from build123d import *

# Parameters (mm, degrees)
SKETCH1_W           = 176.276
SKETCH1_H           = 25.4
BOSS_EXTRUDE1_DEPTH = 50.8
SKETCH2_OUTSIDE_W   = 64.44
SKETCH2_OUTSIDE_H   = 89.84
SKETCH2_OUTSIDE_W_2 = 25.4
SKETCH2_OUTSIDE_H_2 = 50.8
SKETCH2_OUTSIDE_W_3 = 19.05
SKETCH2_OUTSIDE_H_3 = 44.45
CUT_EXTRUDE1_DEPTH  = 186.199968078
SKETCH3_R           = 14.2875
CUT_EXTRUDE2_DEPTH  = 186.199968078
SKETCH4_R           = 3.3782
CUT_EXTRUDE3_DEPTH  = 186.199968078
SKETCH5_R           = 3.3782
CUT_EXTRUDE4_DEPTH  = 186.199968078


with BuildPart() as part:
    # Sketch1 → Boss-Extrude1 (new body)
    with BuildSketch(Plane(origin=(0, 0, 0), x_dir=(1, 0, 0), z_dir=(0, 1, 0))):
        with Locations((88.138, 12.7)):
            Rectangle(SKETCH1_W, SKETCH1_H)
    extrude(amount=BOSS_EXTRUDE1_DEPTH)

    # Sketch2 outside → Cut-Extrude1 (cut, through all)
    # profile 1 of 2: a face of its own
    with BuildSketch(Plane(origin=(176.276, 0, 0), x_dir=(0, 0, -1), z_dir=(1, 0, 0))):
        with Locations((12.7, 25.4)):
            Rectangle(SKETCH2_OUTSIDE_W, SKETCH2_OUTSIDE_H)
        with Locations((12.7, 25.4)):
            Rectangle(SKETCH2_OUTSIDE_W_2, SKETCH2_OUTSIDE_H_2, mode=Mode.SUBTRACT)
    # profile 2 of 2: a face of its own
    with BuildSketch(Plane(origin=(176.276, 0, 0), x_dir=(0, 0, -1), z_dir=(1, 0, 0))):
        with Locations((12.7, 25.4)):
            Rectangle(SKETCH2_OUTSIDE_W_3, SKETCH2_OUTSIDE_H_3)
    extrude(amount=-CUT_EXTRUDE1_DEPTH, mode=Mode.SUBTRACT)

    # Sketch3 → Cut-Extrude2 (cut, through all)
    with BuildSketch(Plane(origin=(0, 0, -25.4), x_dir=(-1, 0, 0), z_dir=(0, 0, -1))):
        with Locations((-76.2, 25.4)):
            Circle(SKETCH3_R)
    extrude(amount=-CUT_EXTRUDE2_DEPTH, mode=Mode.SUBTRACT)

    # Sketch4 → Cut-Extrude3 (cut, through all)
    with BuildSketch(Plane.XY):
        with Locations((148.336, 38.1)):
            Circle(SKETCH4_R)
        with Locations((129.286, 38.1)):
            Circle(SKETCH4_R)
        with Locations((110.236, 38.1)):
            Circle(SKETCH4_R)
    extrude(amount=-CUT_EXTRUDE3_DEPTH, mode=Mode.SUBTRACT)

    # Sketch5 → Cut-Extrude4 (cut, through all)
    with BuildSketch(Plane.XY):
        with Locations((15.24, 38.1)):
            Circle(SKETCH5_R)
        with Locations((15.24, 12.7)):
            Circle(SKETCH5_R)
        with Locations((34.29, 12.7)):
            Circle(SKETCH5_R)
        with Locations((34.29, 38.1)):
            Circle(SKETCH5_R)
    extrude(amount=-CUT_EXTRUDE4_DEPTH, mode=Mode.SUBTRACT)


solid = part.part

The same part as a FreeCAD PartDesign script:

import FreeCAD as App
import Part
import Sketcher

V = App.Vector
Q = App.Units.Quantity

doc = App.newDocument("Part")
params = doc.addObject("Spreadsheet::Sheet", "Params")
for row, (alias, value) in enumerate([
    ("sketch1_height", "1 in"),
    ("sketch1_width", "6.94 in"),
    ("pad1_length", "2 in"),
    ("sketch2_width", "2 in"),
    ("sketch2_height", "1 in"),
    ("sketch2_width2", "1.75 in"),
    ("sketch2_height2", "0.75 in"),
    ("pocket1_length", "186.199968 mm"),
    ("sketch3_diameter", "1.125 in"),
    ("sketch4_diameter", "0.266 in"),
    ("sketch5_diameter", "0.266 in"),
], start=1):
    params.set(f"A{row}", alias)
    params.set(f"B{row}", "=" + value)
    params.setAlias(f"B{row}", alias)

body = doc.addObject("PartDesign::Body", "Body")

# Sketch on XZ plane
sketch1 = body.newObject("Sketcher::SketchObject", "Sketch")
sketch1.AttachmentSupport = (doc.getObject("XZ_Plane"), [""])
sketch1.MapMode = "FlatFace"
sketch1.addGeometry(Part.LineSegment(V(0, -25, 0), V(0, 0, 0)), False)
sketch1.addGeometry(Part.LineSegment(V(0, 0, 0), V(176, 0, 0)), False)
sketch1.addGeometry(Part.LineSegment(V(176, 0, 0), V(176, -25, 0)), False)
sketch1.addGeometry(Part.LineSegment(V(176, -25, 0), V(0, -25, 0)), False)
sketch1.addConstraint(Sketcher.Constraint("Coincident", 0, 2, 1, 1))
sketch1.addConstraint(Sketcher.Constraint("Coincident", 1, 2, 2, 1))
sketch1.addConstraint(Sketcher.Constraint("Coincident", 2, 2, 3, 1))
sketch1.addConstraint(Sketcher.Constraint("Coincident", 3, 2, 0, 1))
sketch1.addConstraint(Sketcher.Constraint("Vertical", 0))
sketch1.addConstraint(Sketcher.Constraint("Horizontal", 1))
sketch1.addConstraint(Sketcher.Constraint("Vertical", 2))
sketch1.addConstraint(Sketcher.Constraint("Horizontal", 3))
sketch1.addConstraint(Sketcher.Constraint("Coincident", 0, 2, -1, 1))
sketch1.addConstraint(Sketcher.Constraint("DistanceY", 0, 1, 0, 2, Q("1 in")))
sketch1.addConstraint(Sketcher.Constraint("DistanceX", 1, 1, 1, 2, Q("6.94 in")))
sketch1.setExpression("Constraints[9]", "Params.sketch1_height")
sketch1.setExpression("Constraints[10]", "Params.sketch1_width")
pad1 = body.newObject("PartDesign::Pad", "Pad")
pad1.Profile = sketch1
pad1.setExpression("Length", "Params.pad1_length")
pad1.Reversed = True

# Sketch on YZ plane
sketch2 = body.newObject("Sketcher::SketchObject", "Sketch001")
sketch2.AttachmentSupport = (doc.getObject("YZ_Plane"), [""])
sketch2.MapMode = "FlatFace"
sketch2.AttachmentOffset = App.Placement(V(0, 0, 6.94 * 25.4), App.Rotation())
sketch2.addGeometry(Part.LineSegment(V(70, 20, 0), V(-20, 20, 0)), False)
sketch2.addGeometry(Part.LineSegment(V(-20, 20, 0), V(-20, -45, 0)), False)
sketch2.addGeometry(Part.LineSegment(V(-20, -45, 0), V(70, -45, 0)), False)
sketch2.addGeometry(Part.LineSegment(V(70, -45, 0), V(70, 20, 0)), False)
sketch2.addGeometry(Part.LineSegment(V(0, -25, 0), V(0, 0, 0)), False)
sketch2.addGeometry(Part.LineSegment(V(0, 0, 0), V(51, 0, 0)), False)
sketch2.addGeometry(Part.LineSegment(V(51, 0, 0), V(51, -25, 0)), False)
sketch2.addGeometry(Part.LineSegment(V(51, -25, 0), V(0, -25, 0)), False)
sketch2.addGeometry(Part.LineSegment(V(48, -3, 0), V(3, -3, 0)), False)
sketch2.addGeometry(Part.LineSegment(V(3, -3, 0), V(3, -22, 0)), False)
sketch2.addGeometry(Part.LineSegment(V(3, -22, 0), V(48, -22, 0)), False)
sketch2.addGeometry(Part.LineSegment(V(48, -22, 0), V(48, -3, 0)), False)
sketch2.addConstraint(Sketcher.Constraint("Coincident", 0, 2, 1, 1))
sketch2.addConstraint(Sketcher.Constraint("Coincident", 1, 2, 2, 1))
sketch2.addConstraint(Sketcher.Constraint("Coincident", 2, 2, 3, 1))
sketch2.addConstraint(Sketcher.Constraint("Coincident", 3, 2, 0, 1))
sketch2.addConstraint(Sketcher.Constraint("Coincident", 4, 2, 5, 1))
sketch2.addConstraint(Sketcher.Constraint("Coincident", 5, 2, 6, 1))
sketch2.addConstraint(Sketcher.Constraint("Coincident", 6, 2, 7, 1))
sketch2.addConstraint(Sketcher.Constraint("Coincident", 7, 2, 4, 1))
sketch2.addConstraint(Sketcher.Constraint("Coincident", 8, 2, 9, 1))
sketch2.addConstraint(Sketcher.Constraint("Coincident", 9, 2, 10, 1))
sketch2.addConstraint(Sketcher.Constraint("Coincident", 10, 2, 11, 1))
sketch2.addConstraint(Sketcher.Constraint("Coincident", 11, 2, 8, 1))
sketch2.addConstraint(Sketcher.Constraint("Horizontal", 0))
sketch2.addConstraint(Sketcher.Constraint("Vertical", 1))
sketch2.addConstraint(Sketcher.Constraint("Horizontal", 2))
sketch2.addConstraint(Sketcher.Constraint("Vertical", 3))
sketch2.addConstraint(Sketcher.Constraint("Vertical", 4))
sketch2.addConstraint(Sketcher.Constraint("Horizontal", 5))
sketch2.addConstraint(Sketcher.Constraint("Vertical", 6))
sketch2.addConstraint(Sketcher.Constraint("Horizontal", 7))
sketch2.addConstraint(Sketcher.Constraint("Horizontal", 8))
sketch2.addConstraint(Sketcher.Constraint("Vertical", 9))
sketch2.addConstraint(Sketcher.Constraint("Horizontal", 10))
sketch2.addConstraint(Sketcher.Constraint("Vertical", 11))
sketch2.addConstraint(Sketcher.Constraint("Coincident", 4, 2, -1, 1))
sketch2.addConstraint(Sketcher.Constraint("DistanceX", 5, 1, 5, 2, Q("2 in")))
sketch2.addConstraint(Sketcher.Constraint("DistanceY", 4, 1, 4, 2, Q("1 in")))
sketch2.addConstraint(Sketcher.Constraint("DistanceX", 8, 2, 8, 1, Q("1.75 in")))
sketch2.addConstraint(Sketcher.Constraint("DistanceY", 9, 2, 9, 1, Q("0.75 in")))
sketch2.addConstraint(Sketcher.Constraint("DistanceX", -1, 1, 8, 2, Q("0.125 in")))
sketch2.addConstraint(Sketcher.Constraint("DistanceY", 8, 2, -1, 1, Q("0.125 in")))
sketch2.addConstraint(Sketcher.Constraint("DistanceX", 0, 2, 0, 1, Q("89.84 mm")))
sketch2.addConstraint(Sketcher.Constraint("DistanceY", 1, 2, 1, 1, Q("64.44 mm")))
sketch2.addConstraint(Sketcher.Constraint("DistanceX", 0, 2, -1, 1, Q("19.52 mm")))
sketch2.addConstraint(Sketcher.Constraint("DistanceY", -1, 1, 0, 2, Q("19.52 mm")))
sketch2.setExpression("Constraints[25]", "Params.sketch2_width")
sketch2.setExpression("Constraints[26]", "Params.sketch2_height")
sketch2.setExpression("Constraints[27]", "Params.sketch2_width2")
sketch2.setExpression("Constraints[28]", "Params.sketch2_height2")
pocket1 = body.newObject("PartDesign::Pocket", "Pocket")
pocket1.Profile = sketch2
pocket1.setExpression("Length", "Params.pocket1_length")

# Sketch on XY plane
sketch3 = body.newObject("Sketcher::SketchObject", "Sketch002")
sketch3.AttachmentSupport = (doc.getObject("XY_Plane"), [""])
sketch3.MapMode = "FlatFace"
sketch3.AttachmentOffset = App.Placement(V(0, 0, -1 * 25.4), App.Rotation())
sketch3.addGeometry(Part.Circle(V(76, 25, 0), V(0, 0, 1), 14), False)
sketch3.addConstraint(Sketcher.Constraint("Diameter", 0, Q("1.125 in")))
sketch3.addConstraint(Sketcher.Constraint("DistanceX", -1, 1, 0, 3, Q("3 in")))
sketch3.addConstraint(Sketcher.Constraint("DistanceY", -1, 1, 0, 3, Q("1 in")))
sketch3.setExpression("Constraints[0]", "Params.sketch3_diameter")
pocket2 = body.newObject("PartDesign::Pocket", "Pocket001")
pocket2.Profile = sketch3
pocket2.Type = "ThroughAll"
pocket2.Reversed = True

# Sketch on XY plane
sketch4 = body.newObject("Sketcher::SketchObject", "Sketch003")
sketch4.AttachmentSupport = (doc.getObject("XY_Plane"), [""])
sketch4.MapMode = "FlatFace"
sketch4.addGeometry(Part.Circle(V(148.3, 38.1, 0), V(0, 0, 1), 3.4), False)
sketch4.addGeometry(Part.Circle(V(129.3, 38.1, 0), V(0, 0, 1), 3.4), False)
sketch4.addGeometry(Part.Circle(V(110.2, 38.1, 0), V(0, 0, 1), 3.4), False)
sketch4.addConstraint(Sketcher.Constraint("Equal", 0, 1))
sketch4.addConstraint(Sketcher.Constraint("Equal", 1, 2))
sketch4.addConstraint(Sketcher.Constraint("Horizontal", 0, 3, 1, 3))
sketch4.addConstraint(Sketcher.Constraint("Horizontal", 1, 3, 2, 3))
sketch4.addConstraint(Sketcher.Constraint("Diameter", 0, Q("0.266 in")))
sketch4.addConstraint(Sketcher.Constraint("DistanceY", -1, 1, 0, 3, Q("1.5 in")))
sketch4.addConstraint(Sketcher.Constraint("DistanceX", 2, 3, 0, 3, Q("1.5 in")))
sketch4.addConstraint(Sketcher.Constraint("DistanceX", -1, 1, 0, 3, Q("5.84 in")))
sketch4.addConstraint(Sketcher.Constraint("DistanceX", -1, 1, 1, 3, Q("5.09 in")))
sketch4.setExpression("Constraints[4]", "Params.sketch4_diameter")
pocket3 = body.newObject("PartDesign::Pocket", "Pocket002")
pocket3.Profile = sketch4
pocket3.Type = "ThroughAll"

# Sketch on XY plane
sketch5 = body.newObject("Sketcher::SketchObject", "Sketch004")
sketch5.AttachmentSupport = (doc.getObject("XY_Plane"), [""])
sketch5.MapMode = "FlatFace"
sketch5.addGeometry(Part.Circle(V(15.2, 38.1, 0), V(0, 0, 1), 3.4), False)
sketch5.addGeometry(Part.Circle(V(15.2, 12.7, 0), V(0, 0, 1), 3.4), False)
sketch5.addGeometry(Part.Circle(V(34.3, 12.7, 0), V(0, 0, 1), 3.4), False)
sketch5.addGeometry(Part.Circle(V(34.3, 38.1, 0), V(0, 0, 1), 3.4), False)
sketch5.addConstraint(Sketcher.Constraint("Equal", 0, 1))
sketch5.addConstraint(Sketcher.Constraint("Equal", 1, 2))
sketch5.addConstraint(Sketcher.Constraint("Equal", 2, 3))
sketch5.addConstraint(Sketcher.Constraint("Horizontal", 1, 3, 2, 3))
sketch5.addConstraint(Sketcher.Constraint("Horizontal", 0, 3, 3, 3))
sketch5.addConstraint(Sketcher.Constraint("Vertical", 0, 3, 1, 3))
sketch5.addConstraint(Sketcher.Constraint("Vertical", 2, 3, 3, 3))
sketch5.addConstraint(Sketcher.Constraint("Diameter", 0, Q("0.266 in")))
sketch5.addConstraint(Sketcher.Constraint("DistanceY", 1, 3, 0, 3, Q("1 in")))
sketch5.addConstraint(Sketcher.Constraint("DistanceX", -1, 1, 0, 3, Q("0.6 in")))
sketch5.addConstraint(Sketcher.Constraint("DistanceY", -1, 1, 0, 3, Q("1.5 in")))
sketch5.addConstraint(Sketcher.Constraint("DistanceX", -1, 1, 2, 3, Q("1.35 in")))
sketch5.setExpression("Constraints[7]", "Params.sketch5_diameter")
pocket4 = body.newObject("PartDesign::Pocket", "Pocket003")
pocket4.Profile = sketch5
pocket4.Type = "ThroughAll"

doc.recompute()
